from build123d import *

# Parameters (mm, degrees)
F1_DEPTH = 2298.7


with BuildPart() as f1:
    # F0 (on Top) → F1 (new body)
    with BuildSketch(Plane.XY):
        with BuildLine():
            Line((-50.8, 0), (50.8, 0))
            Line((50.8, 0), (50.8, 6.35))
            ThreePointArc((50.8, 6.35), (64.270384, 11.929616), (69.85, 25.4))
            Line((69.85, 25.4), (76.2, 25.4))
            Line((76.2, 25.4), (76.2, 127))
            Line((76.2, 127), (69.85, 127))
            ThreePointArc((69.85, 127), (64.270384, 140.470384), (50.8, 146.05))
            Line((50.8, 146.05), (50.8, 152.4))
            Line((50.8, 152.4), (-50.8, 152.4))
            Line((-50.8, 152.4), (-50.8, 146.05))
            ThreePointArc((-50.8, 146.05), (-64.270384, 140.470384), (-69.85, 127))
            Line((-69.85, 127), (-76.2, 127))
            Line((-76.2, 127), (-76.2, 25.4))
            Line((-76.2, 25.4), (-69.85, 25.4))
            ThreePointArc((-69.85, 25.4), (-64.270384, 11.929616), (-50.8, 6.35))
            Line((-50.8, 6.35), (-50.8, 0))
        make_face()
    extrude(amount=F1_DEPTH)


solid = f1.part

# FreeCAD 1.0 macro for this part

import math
import FreeCAD as App
import Part
import Sketcher
Q = App.Units.Quantity

doc = App.newDocument("Part")
body = doc.addObject("PartDesign::Body", "Body")

# Sketch on XY plane
sketch1 = body.newObject("Sketcher::SketchObject", "Sketch")
sketch1.AttachmentSupport = (doc.getObject("XY_Plane"), [""])
sketch1.MapMode = "FlatFace"
sketch1.addGeometry([
    Part.LineSegment(App.Vector(-51, 0, 0), App.Vector(51, 0, 0)),  # 0
    Part.LineSegment(App.Vector(51, 0, 0), App.Vector(51, 6, 0)),  # 1
    Part.ArcOfCircle(Part.Circle(App.Vector(51, 25, 0), App.Vector(0, 0, 1), 19), math.radians(-90), math.radians(0)),  # 2
    Part.LineSegment(App.Vector(70, 25, 0), App.Vector(76, 25, 0)),  # 3
    Part.LineSegment(App.Vector(76, 25, 0), App.Vector(76, 127, 0)),  # 4
    Part.LineSegment(App.Vector(76, 127, 0), App.Vector(70, 127, 0)),  # 5
    Part.ArcOfCircle(Part.Circle(App.Vector(51, 127, 0), App.Vector(0, 0, 1), 19), math.radians(0), math.radians(90)),  # 6
    Part.LineSegment(App.Vector(51, 146, 0), App.Vector(51, 152, 0)),  # 7
    Part.LineSegment(App.Vector(51, 152, 0), App.Vector(-51, 152, 0)),  # 8
    Part.LineSegment(App.Vector(-51, 152, 0), App.Vector(-51, 146, 0)),  # 9
    Part.ArcOfCircle(Part.Circle(App.Vector(-51, 127, 0), App.Vector(0, 0, 1), 19), math.radians(90), math.radians(180)),  # 10
    Part.LineSegment(App.Vector(-70, 127, 0), App.Vector(-76, 127, 0)),  # 11
    Part.LineSegment(App.Vector(-76, 127, 0), App.Vector(-76, 25, 0)),  # 12
    Part.LineSegment(App.Vector(-76, 25, 0), App.Vector(-70, 25, 0)),  # 13
    Part.ArcOfCircle(Part.Circle(App.Vector(-51, 25, 0), App.Vector(0, 0, 1), 19), math.radians(-180), math.radians(-90)),  # 14
    Part.LineSegment(App.Vector(-51, 6, 0), App.Vector(-51, 0, 0)),  # 15
], False)
sketch1.addConstraint([
    Sketcher.Constraint("Coincident", 0, 2, 1, 1),
    Sketcher.Constraint("Coincident", 1, 2, 2, 1),
    Sketcher.Constraint("Coincident", 2, 2, 3, 1),
    Sketcher.Constraint("Coincident", 3, 2, 4, 1),
    Sketcher.Constraint("Coincident", 4, 2, 5, 1),
    Sketcher.Constraint("Coincident", 5, 2, 6, 1),
    Sketcher.Constraint("Coincident", 6, 2, 7, 1),
    Sketcher.Constraint("Coincident", 7, 2, 8, 1),
    Sketcher.Constraint("Coincident", 8, 2, 9, 1),
    Sketcher.Constraint("Coincident", 9, 2, 10, 1),
    Sketcher.Constraint("Coincident", 10, 2, 11, 1),
    Sketcher.Constraint("Coincident", 11, 2, 12, 1),
    Sketcher.Constraint("Coincident", 12, 2, 13, 1),
    Sketcher.Constraint("Coincident", 13, 2, 14, 1),
    Sketcher.Constraint("Coincident", 14, 2, 15, 1),
    Sketcher.Constraint("Coincident", 15, 2, 0, 1),
    Sketcher.Constraint("Horizontal", 0),
    Sketcher.Constraint("Vertical", 1),
    Sketcher.Constraint("Horizontal", 3),
    Sketcher.Constraint("Vertical", 4),
    Sketcher.Constraint("Horizontal", 5),
    Sketcher.Constraint("Vertical", 7),
    Sketcher.Constraint("Horizontal", 8),
    Sketcher.Constraint("Vertical", 9),
    Sketcher.Constraint("Horizontal", 11),
    Sketcher.Constraint("Vertical", 12),
    Sketcher.Constraint("Horizontal", 13),
    Sketcher.Constraint("Vertical", 15),
    Sketcher.Constraint("Equal", 2, 6),
    Sketcher.Constraint("Equal", 6, 10),
    Sketcher.Constraint("Equal", 10, 14),
    Sketcher.Constraint("Symmetric", 0, 2, 15, 2, -1, 1),
    Sketcher.Constraint("Symmetric", 6, 3, 10, 3, -2),
    Sketcher.Constraint("Symmetric", 2, 3, 14, 3, -2),
    Sketcher.Constraint("Symmetric", 4, 2, 11, 2, -2),
    Sketcher.Constraint("Horizontal", 14, 3, 2, 2),
    Sketcher.Constraint("Horizontal", 10, 3, 4, 2),
    Sketcher.Constraint("Horizontal", 3, 2, 12, 2),
    Sketcher.Constraint("Vertical", 2, 3, 6, 3),
    Sketcher.Constraint("Vertical", 6, 3, 0, 2),
    Sketcher.Constraint("Vertical", 1, 2, 6, 2),
    Sketcher.Constraint("Vertical", 14, 3, 8, 2),
    Sketcher.Constraint("Equal", 13, 1),
    Sketcher.Constraint("Equal", 8, 4),
    Sketcher.Constraint("Equal", 1, 7),
    Sketcher.Constraint("DistanceX", 0, 1, 0, 2, Q("4 in")),
    Sketcher.Constraint("Radius", 2, Q("0.75 in")),
    Sketcher.Constraint("DistanceY", -1, 1, 2, 3, Q("1 in")),
])
pad1 = body.newObject("PartDesign::Pad", "Pad")
pad1.Profile = sketch1
pad1.Length = Q("90.5 in")

doc.recompute()
